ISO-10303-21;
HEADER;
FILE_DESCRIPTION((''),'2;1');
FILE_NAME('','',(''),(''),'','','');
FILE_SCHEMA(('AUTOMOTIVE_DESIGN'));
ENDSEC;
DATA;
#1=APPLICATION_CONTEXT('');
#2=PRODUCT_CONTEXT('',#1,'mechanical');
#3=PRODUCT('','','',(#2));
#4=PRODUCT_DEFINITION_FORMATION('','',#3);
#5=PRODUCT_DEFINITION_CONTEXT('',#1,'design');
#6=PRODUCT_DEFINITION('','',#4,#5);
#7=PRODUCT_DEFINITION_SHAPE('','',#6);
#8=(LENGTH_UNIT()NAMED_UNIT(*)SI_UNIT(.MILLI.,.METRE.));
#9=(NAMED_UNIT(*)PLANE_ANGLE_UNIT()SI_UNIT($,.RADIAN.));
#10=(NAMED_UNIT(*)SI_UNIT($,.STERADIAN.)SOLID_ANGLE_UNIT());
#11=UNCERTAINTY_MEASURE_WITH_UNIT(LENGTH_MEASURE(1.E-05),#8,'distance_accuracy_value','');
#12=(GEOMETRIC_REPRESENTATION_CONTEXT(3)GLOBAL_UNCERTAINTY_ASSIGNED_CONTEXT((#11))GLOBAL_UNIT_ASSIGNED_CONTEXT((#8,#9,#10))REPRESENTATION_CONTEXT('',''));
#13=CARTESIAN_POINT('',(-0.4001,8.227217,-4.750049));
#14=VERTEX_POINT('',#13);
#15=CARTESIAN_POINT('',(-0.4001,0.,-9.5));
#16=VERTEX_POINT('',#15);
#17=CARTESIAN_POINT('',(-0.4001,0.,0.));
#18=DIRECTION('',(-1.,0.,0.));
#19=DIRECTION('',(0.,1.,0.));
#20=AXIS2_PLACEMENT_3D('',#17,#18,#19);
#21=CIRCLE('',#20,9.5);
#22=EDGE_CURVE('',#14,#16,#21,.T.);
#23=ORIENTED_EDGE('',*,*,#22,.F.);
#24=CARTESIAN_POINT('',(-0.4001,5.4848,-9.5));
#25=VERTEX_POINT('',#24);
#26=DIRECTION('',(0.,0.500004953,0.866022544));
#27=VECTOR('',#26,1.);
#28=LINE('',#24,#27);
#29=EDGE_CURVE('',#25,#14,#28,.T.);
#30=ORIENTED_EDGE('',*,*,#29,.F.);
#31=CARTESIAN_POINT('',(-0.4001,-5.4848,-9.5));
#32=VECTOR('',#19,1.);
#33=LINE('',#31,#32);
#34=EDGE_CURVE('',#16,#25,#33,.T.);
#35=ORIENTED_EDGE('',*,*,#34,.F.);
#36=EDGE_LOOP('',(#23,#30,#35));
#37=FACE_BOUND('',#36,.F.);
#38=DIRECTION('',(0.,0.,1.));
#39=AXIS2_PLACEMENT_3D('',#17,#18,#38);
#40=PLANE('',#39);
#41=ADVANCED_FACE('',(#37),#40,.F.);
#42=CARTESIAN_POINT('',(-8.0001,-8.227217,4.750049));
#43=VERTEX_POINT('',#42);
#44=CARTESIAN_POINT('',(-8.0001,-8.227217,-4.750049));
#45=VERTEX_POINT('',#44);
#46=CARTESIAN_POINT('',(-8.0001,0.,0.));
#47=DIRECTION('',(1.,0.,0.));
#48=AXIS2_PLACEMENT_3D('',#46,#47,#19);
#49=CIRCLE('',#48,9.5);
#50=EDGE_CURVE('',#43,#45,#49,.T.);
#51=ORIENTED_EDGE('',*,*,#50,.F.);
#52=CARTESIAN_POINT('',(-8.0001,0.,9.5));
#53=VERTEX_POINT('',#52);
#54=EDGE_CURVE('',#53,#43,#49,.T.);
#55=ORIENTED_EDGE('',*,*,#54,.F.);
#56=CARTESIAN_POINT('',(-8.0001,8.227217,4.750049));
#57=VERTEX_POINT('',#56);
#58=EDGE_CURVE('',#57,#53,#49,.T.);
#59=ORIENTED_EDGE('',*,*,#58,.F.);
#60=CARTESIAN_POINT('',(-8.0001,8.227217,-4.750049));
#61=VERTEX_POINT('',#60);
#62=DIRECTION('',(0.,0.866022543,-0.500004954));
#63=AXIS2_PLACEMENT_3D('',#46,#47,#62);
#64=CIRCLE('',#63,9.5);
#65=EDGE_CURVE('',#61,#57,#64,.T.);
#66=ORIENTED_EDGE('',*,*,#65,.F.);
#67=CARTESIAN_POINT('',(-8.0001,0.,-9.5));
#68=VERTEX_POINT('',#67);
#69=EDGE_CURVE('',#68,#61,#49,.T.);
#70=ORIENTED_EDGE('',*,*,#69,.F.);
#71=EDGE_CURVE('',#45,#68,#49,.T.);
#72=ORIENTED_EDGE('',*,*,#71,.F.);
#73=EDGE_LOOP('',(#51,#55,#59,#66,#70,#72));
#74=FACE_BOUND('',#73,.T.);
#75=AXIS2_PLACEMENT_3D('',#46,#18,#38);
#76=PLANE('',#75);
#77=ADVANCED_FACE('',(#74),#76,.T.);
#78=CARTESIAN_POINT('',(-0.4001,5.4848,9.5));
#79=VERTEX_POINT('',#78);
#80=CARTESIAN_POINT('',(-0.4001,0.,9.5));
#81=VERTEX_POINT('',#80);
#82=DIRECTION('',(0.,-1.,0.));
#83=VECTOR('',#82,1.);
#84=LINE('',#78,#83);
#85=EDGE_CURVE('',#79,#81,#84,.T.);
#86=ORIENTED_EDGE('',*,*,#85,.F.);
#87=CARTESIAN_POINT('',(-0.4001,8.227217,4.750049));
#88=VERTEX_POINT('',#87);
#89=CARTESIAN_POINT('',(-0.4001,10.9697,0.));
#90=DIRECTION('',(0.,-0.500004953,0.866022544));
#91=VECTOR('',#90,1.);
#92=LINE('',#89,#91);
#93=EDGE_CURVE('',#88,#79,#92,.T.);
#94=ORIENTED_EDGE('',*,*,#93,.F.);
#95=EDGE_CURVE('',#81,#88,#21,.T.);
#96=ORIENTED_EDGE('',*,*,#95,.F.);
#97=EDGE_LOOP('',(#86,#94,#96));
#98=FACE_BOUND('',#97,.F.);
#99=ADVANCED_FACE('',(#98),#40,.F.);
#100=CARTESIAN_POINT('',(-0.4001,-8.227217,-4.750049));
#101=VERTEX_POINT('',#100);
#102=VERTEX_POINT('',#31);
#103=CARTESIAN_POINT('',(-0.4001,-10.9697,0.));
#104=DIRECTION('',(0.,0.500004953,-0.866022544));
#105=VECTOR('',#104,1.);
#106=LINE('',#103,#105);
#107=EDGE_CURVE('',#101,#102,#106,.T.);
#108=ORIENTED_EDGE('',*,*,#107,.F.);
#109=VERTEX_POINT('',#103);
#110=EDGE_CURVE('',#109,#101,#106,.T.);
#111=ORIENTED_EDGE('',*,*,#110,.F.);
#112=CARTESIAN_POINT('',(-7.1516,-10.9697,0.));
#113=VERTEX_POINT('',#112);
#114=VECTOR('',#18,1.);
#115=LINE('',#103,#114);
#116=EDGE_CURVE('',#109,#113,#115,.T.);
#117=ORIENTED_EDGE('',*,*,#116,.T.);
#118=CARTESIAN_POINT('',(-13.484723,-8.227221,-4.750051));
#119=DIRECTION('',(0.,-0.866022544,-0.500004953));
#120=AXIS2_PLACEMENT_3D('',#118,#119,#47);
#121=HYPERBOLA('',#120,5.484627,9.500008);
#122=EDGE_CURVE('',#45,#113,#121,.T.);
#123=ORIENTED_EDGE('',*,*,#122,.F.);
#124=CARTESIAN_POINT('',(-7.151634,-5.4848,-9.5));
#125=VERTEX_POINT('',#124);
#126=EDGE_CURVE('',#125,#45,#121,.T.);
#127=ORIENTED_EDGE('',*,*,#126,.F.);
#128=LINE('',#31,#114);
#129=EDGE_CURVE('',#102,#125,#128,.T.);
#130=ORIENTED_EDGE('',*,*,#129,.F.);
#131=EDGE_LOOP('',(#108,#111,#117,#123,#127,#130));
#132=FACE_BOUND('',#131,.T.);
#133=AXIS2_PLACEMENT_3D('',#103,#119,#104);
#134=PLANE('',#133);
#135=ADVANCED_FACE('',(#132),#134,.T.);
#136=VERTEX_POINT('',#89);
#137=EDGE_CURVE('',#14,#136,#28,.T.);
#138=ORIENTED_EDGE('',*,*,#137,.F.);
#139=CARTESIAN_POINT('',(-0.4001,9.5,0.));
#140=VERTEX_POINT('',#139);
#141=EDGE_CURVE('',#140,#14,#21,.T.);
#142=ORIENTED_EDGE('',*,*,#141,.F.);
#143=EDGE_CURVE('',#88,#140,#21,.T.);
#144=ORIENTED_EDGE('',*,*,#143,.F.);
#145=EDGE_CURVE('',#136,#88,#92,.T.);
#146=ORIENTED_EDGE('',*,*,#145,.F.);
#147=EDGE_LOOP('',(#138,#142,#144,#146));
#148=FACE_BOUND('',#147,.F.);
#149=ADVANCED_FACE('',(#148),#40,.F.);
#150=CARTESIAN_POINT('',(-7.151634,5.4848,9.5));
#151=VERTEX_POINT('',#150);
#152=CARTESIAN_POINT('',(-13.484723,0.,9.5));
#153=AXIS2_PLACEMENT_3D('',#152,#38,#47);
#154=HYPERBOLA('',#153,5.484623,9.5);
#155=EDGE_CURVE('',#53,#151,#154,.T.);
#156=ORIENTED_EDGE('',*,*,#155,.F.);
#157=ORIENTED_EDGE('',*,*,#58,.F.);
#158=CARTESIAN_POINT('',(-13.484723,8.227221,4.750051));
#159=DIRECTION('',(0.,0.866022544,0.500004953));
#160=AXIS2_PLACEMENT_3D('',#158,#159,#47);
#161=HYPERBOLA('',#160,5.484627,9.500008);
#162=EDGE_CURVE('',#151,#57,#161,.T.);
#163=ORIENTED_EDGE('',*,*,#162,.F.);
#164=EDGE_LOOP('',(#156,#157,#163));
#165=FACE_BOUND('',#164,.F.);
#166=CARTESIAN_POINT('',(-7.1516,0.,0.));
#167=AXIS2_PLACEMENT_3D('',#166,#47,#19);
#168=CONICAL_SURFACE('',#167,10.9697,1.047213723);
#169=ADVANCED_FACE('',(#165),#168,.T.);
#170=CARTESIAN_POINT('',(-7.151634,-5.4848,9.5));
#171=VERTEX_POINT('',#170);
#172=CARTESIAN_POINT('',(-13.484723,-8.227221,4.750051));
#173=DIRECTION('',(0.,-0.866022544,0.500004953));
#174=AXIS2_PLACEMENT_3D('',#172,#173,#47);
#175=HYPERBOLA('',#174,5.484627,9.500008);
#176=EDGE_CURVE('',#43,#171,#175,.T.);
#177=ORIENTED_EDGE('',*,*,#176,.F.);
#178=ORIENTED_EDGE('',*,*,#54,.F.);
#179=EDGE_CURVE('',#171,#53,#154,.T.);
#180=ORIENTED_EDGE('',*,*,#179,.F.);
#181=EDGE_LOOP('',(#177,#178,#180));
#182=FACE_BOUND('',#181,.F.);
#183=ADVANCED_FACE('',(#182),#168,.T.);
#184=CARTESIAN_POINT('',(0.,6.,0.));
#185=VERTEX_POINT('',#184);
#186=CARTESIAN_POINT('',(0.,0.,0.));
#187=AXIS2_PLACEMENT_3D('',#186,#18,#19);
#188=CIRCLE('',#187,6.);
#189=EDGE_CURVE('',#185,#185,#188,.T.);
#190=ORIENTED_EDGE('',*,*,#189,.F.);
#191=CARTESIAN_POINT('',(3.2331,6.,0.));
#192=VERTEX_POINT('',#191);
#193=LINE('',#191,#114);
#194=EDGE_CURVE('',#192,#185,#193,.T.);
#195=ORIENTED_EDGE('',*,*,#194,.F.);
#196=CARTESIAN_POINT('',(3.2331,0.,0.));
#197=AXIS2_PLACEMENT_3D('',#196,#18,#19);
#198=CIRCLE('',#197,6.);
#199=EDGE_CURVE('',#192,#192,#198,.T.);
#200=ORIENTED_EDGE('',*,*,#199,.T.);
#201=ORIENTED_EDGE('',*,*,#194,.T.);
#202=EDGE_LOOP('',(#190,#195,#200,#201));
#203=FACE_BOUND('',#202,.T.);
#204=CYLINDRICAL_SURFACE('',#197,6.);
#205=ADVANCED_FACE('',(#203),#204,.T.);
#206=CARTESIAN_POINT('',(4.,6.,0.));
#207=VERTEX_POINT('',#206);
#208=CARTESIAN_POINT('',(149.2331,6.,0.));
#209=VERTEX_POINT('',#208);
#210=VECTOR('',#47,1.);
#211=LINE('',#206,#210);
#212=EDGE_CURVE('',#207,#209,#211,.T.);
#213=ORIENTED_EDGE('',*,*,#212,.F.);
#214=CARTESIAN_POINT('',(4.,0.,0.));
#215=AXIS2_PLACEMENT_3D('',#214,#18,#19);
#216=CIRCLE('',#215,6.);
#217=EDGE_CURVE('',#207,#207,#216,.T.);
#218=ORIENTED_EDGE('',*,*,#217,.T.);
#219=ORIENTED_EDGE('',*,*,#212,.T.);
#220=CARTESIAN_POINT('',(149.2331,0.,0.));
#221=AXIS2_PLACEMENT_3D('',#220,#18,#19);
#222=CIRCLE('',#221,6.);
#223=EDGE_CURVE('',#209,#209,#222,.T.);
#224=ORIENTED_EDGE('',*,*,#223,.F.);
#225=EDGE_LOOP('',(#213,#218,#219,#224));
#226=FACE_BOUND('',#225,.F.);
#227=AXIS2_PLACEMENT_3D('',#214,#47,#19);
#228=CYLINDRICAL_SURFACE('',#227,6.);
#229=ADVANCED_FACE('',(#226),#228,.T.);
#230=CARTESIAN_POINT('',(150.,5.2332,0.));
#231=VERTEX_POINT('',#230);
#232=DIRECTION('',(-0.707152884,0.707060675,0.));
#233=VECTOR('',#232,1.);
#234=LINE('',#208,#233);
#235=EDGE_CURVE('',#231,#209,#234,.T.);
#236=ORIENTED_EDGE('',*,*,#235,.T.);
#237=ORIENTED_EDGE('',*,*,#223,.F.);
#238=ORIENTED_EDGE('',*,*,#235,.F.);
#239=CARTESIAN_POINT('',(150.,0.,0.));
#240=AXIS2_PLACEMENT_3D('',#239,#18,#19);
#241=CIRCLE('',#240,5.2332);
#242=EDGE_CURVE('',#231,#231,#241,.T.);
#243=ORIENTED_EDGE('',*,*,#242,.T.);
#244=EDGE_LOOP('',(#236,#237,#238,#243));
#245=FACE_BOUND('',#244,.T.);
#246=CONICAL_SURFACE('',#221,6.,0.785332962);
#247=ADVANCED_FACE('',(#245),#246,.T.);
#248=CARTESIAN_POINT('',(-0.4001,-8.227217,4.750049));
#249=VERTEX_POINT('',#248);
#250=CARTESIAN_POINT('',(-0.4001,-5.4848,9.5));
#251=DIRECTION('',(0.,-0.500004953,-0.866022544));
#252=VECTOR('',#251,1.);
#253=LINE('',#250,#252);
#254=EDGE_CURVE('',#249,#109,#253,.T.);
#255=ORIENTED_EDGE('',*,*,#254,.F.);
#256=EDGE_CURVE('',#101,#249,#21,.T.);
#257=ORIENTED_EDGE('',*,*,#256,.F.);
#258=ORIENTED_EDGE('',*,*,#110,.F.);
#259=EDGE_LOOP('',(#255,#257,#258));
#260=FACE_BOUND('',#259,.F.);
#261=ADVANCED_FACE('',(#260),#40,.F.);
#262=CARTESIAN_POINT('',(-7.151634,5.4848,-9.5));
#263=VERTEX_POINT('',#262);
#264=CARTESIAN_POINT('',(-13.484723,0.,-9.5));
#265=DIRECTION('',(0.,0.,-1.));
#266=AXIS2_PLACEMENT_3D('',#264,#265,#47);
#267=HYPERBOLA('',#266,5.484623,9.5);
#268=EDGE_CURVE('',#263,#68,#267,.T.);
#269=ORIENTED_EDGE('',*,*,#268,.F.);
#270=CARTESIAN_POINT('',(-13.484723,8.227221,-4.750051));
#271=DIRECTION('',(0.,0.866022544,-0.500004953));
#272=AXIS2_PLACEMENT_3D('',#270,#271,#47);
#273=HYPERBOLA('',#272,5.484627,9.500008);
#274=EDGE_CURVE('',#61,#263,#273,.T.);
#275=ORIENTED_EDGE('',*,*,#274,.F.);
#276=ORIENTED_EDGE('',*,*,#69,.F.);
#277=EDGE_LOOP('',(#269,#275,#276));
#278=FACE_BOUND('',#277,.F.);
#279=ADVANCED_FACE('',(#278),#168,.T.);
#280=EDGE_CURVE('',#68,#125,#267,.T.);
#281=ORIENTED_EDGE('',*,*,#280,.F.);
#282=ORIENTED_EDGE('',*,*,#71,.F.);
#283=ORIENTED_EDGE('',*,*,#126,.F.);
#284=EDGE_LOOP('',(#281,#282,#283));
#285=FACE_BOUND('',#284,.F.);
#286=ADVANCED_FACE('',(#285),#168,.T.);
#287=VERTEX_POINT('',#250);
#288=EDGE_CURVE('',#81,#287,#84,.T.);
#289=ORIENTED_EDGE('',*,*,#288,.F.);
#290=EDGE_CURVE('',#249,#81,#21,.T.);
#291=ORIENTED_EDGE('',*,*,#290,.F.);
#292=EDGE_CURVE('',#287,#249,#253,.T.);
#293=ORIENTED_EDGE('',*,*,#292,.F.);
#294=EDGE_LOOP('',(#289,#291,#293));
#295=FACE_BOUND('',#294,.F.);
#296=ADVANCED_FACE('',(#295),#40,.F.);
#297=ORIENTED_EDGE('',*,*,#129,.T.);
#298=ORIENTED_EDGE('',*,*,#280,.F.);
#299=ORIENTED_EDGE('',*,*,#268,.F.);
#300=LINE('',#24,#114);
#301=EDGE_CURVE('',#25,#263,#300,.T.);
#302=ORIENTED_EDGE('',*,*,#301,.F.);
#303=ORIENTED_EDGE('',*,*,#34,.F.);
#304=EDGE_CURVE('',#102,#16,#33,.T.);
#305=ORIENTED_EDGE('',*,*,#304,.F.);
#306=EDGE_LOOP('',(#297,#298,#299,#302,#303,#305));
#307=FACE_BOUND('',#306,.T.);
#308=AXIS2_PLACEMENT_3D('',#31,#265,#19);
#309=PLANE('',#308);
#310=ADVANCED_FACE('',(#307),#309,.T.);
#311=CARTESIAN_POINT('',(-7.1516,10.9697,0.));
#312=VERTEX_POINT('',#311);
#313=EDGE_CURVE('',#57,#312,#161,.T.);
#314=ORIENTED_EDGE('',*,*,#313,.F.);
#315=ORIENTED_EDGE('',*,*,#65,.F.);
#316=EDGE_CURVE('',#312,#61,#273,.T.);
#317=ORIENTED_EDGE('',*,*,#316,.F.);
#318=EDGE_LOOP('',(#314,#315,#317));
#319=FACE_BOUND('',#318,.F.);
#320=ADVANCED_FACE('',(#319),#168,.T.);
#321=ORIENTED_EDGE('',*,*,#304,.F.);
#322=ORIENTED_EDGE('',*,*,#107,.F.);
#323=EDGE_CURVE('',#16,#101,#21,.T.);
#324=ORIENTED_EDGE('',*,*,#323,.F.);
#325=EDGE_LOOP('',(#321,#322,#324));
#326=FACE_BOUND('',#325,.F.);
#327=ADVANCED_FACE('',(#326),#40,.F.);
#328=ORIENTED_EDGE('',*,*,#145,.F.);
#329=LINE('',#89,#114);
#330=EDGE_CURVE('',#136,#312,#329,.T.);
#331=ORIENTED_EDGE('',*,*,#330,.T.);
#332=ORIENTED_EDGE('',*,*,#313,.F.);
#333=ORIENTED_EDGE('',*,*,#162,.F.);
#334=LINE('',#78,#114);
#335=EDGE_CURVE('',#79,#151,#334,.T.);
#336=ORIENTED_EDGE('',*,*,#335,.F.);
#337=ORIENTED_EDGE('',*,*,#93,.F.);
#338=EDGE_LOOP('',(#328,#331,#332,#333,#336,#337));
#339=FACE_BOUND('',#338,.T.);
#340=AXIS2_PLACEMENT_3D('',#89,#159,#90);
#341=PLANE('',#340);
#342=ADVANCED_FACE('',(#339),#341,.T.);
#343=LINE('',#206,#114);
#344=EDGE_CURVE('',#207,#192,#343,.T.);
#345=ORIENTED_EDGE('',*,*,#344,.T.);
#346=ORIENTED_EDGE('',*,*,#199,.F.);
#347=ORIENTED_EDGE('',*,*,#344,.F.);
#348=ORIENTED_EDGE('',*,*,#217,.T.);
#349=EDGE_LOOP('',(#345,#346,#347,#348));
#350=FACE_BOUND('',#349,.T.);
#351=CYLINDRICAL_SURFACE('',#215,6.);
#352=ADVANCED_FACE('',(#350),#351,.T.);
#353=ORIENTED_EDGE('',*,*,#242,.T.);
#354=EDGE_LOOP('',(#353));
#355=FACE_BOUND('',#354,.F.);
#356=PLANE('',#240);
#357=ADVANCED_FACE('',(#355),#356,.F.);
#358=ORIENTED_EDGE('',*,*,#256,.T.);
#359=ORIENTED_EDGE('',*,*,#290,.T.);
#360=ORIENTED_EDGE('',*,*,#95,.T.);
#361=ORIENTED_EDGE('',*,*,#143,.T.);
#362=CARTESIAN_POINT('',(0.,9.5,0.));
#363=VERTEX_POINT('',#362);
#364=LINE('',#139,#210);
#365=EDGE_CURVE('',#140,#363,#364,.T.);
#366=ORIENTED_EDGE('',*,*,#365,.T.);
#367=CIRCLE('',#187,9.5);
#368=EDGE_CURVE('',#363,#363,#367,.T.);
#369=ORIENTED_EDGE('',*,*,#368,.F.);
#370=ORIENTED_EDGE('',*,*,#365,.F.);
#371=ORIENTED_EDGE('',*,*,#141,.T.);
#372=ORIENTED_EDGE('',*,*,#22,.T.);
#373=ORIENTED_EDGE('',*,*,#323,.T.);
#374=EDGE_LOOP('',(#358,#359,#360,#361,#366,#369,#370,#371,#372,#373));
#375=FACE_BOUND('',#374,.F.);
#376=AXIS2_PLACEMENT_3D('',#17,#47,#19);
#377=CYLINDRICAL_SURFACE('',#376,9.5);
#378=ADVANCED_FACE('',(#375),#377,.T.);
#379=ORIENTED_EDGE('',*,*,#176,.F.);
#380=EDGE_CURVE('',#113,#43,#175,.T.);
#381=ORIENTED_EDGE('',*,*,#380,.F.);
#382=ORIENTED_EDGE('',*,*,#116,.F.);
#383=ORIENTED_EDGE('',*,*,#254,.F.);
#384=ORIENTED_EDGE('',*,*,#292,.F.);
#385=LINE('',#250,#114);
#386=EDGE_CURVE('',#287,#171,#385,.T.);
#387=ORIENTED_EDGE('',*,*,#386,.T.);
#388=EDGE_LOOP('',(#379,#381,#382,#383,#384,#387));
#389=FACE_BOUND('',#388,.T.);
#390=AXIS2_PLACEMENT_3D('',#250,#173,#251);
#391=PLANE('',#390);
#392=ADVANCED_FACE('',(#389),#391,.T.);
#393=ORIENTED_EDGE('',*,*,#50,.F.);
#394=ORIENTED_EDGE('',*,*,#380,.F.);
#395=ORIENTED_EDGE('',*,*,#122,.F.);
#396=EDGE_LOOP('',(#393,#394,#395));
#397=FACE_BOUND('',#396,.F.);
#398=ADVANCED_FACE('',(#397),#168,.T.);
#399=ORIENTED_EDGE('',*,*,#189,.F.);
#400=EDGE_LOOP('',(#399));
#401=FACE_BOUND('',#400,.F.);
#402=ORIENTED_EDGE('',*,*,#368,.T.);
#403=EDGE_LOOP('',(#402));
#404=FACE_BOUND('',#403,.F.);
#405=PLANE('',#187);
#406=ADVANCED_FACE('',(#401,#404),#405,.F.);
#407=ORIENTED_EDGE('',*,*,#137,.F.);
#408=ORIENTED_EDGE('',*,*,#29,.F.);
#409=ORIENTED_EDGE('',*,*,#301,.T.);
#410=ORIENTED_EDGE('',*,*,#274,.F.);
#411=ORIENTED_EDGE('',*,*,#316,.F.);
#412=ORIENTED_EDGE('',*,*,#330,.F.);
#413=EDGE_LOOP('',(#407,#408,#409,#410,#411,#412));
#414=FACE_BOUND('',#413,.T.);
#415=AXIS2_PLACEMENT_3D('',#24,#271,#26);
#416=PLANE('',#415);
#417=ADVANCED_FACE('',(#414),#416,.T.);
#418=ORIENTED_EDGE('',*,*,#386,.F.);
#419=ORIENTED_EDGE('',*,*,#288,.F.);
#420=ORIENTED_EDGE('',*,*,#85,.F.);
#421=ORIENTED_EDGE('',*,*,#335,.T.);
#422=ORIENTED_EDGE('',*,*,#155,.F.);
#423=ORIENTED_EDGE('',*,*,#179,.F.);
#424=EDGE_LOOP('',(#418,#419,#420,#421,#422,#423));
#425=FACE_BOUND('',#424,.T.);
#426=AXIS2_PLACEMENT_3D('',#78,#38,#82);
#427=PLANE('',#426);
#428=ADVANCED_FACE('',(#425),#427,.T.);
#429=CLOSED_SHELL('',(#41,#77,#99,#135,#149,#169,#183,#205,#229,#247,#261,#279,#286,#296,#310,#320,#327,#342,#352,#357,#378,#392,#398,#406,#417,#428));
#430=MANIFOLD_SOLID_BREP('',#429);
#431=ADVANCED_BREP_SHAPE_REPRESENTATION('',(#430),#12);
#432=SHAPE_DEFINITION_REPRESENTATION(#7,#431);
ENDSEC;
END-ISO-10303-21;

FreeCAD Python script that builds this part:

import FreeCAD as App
import Part
import Sketcher

V = App.Vector
Q = App.Units.Quantity


def edges_at(feature, points):
    """Names of the edges that pass closest to the given points."""
    edges = feature.Shape.Edges
    near = lambda p: min(range(len(edges)), key=lambda i: edges[i].distToShape(Part.Vertex(*p))[0])
    return sorted({f"Edge{near(p) + 1}" for p in points})

doc = App.newDocument("Part")
body = doc.addObject("PartDesign::Body", "Body")

sketch1 = body.newObject("Sketcher::SketchObject", "Sketch")
sketch1.AttachmentSupport = (doc.getObject("XY_Plane"), [""])
sketch1.MapMode = "FlatFace"
sketch1.addGeometry([
    Part.LineSegment(V(0, 6, 0), V(0, 9.5, 0)),
    Part.LineSegment(V(0, 9.5, 0), V(-0.4, 9.5, 0)),
    Part.LineSegment(V(-0.4, 9.5, 0), V(-0.4, 0, 0)),
    Part.LineSegment(V(-0.4, 0, 0), V(150, 0, 0)),
    Part.LineSegment(V(150, 0, 0), V(150, 6, 0)),
    Part.LineSegment(V(150, 6, 0), V(0, 6, 0)),
], False)
sketch1.addConstraint([
    Sketcher.Constraint("Coincident", 0, 2, 1, 1),
    Sketcher.Constraint("Coincident", 1, 2, 2, 1),
    Sketcher.Constraint("Coincident", 2, 2, 3, 1),
    Sketcher.Constraint("Coincident", 3, 2, 4, 1),
    Sketcher.Constraint("Coincident", 4, 2, 5, 1),
    Sketcher.Constraint("Coincident", 5, 2, 0, 1),
    Sketcher.Constraint("Vertical", 0),
    Sketcher.Constraint("Horizontal", 1),
    Sketcher.Constraint("Vertical", 2),
    Sketcher.Constraint("Horizontal", 3),
    Sketcher.Constraint("Vertical", 4),
    Sketcher.Constraint("Horizontal", 5),
    Sketcher.Constraint("PointOnObject", 0, 2, -2),
    Sketcher.Constraint("PointOnObject", 2, 2, -1),
    Sketcher.Constraint("DistanceX", 5, 2, 5, 1, 150.0),
    Sketcher.Constraint("DistanceX", 1, 2, 1, 1, 0.4),
    Sketcher.Constraint("DistanceY", 4, 1, 4, 2, 6.0),
    Sketcher.Constraint("DistanceY", 0, 1, 0, 2, 3.5),
])
revolution = body.newObject("PartDesign::Revolution", "Revolution")
revolution.Profile = sketch1
revolution.ReferenceAxis = (sketch1, ["H_Axis"])
revolution.Angle = 360

sketch2 = body.newObject("Sketcher::SketchObject", "Sketch001")
sketch2.AttachmentSupport = (doc.getObject("YZ_Plane"), [""])
sketch2.MapMode = "FlatFace"
sketch2.AttachmentOffset = App.Placement(V(0, 0, -0.4001), App.Rotation())
sketch2.addGeometry([
    Part.LineSegment(V(5, 10, 0), V(11, 0, 0)),
    Part.LineSegment(V(11, 0, 0), V(5, -10, 0)),
    Part.LineSegment(V(5, -10, 0), V(-5, -10, 0)),
    Part.LineSegment(V(-5, -10, 0), V(-11, 0, 0)),
    Part.LineSegment(V(-11, 0, 0), V(-5, 10, 0)),
    Part.LineSegment(V(-5, 10, 0), V(5, 10, 0)),
], False)
sketch2.addConstraint([
    Sketcher.Constraint("Coincident", 0, 2, 1, 1),
    Sketcher.Constraint("Coincident", 1, 2, 2, 1),
    Sketcher.Constraint("Coincident", 2, 2, 3, 1),
    Sketcher.Constraint("Coincident", 3, 2, 4, 1),
    Sketcher.Constraint("Coincident", 4, 2, 5, 1),
    Sketcher.Constraint("Coincident", 5, 2, 0, 1),
    Sketcher.Constraint("Horizontal", 2),
    Sketcher.Constraint("Horizontal", 5),
    Sketcher.Constraint("Symmetric", 0, 2, 3, 2, -1, 1),
    Sketcher.Constraint("Symmetric", 1, 2, 4, 2, -1, 1),
    Sketcher.Constraint("PointOnObject", 0, 2, -1),
    Sketcher.Constraint("Parallel", 0, 3),
    Sketcher.Constraint("Vertical", 2, 2, 4, 2),
    Sketcher.Constraint("DistanceY", 2, 2, 4, 2, 19.0),
    Sketcher.Constraint("Angle", 0, Q("-59.9997 deg")),
    Sketcher.Constraint("DistanceX", 2, 2, 2, 1, 10.9696),
])
pad1 = body.newObject("PartDesign::Pad", "Pad")
pad1.Profile = sketch2
pad1.Length = 7.6
pad1.Reversed = True

sketch3 = body.newObject("Sketcher::SketchObject", "Sketch002")
sketch3.AttachmentSupport = (doc.getObject("XY_Plane"), [""])
sketch3.MapMode = "FlatFace"
sketch3.addGeometry([
    Part.LineSegment(V(-8, 11, 0), V(-8, 9.5, 0)),
    Part.LineSegment(V(-8, 9.5, 0), V(-7.2, 11, 0)),
    Part.LineSegment(V(-7.2, 11, 0), V(-8, 11, 0)),
], False)
sketch3.addConstraint([
    Sketcher.Constraint("Coincident", 0, 2, 1, 1),
    Sketcher.Constraint("Coincident", 1, 2, 2, 1),
    Sketcher.Constraint("Coincident", 2, 2, 0, 1),
    Sketcher.Constraint("Vertical", 0),
    Sketcher.Constraint("Horizontal", 2),
    Sketcher.Constraint("Angle", 1, Q("60.001 deg")),
    Sketcher.Constraint("DistanceX", 0, 2, -1, 1, 8.0),
    Sketcher.Constraint("DistanceY", -1, 1, 0, 2, 9.5),
    Sketcher.Constraint("Distance", 1, 1.697),
])
groove = body.newObject("PartDesign::Groove", "Groove")
groove.Profile = sketch3
groove.ReferenceAxis = (sketch3, ["H_Axis"])
groove.Angle = 360
doc.recompute()

chamfer = body.newObject("PartDesign::Chamfer", "Chamfer")
chamfer.Base = (groove, edges_at(groove, [(150, -6, 0)]))
chamfer.ChamferType = "Two distances"
chamfer.Size = 0.7668
chamfer.Size2 = 0.7669

doc.recompute()
